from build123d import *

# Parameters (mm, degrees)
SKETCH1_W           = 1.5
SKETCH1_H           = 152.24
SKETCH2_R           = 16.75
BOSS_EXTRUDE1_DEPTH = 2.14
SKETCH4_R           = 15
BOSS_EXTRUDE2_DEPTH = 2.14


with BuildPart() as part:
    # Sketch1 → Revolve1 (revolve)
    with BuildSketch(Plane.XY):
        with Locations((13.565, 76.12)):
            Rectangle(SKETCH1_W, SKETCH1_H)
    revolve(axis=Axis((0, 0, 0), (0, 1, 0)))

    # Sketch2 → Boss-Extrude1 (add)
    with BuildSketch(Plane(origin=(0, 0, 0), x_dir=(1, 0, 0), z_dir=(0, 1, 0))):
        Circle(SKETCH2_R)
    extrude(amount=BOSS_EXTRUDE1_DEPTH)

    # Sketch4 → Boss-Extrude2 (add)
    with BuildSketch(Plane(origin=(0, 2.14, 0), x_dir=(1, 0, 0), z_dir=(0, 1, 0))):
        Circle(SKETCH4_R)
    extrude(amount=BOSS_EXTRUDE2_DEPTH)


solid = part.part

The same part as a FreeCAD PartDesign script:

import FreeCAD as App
import Part
import Sketcher

V = App.Vector

doc = App.newDocument("Part")
params = doc.addObject("Spreadsheet::Sheet", "Params")
for row, (alias, value) in enumerate([
    ("sketch1_width", "1.5 mm"),
    ("sketch1_height", "152.24 mm"),
    ("revolution_angle", "360 deg"),
    ("sketch2_diameter", "33.5 mm"),
    ("pad1_length", "2.14 mm"),
    ("sketch3_diameter", "30 mm"),
    ("pad2_length", "2.14 mm"),
], start=1):
    params.set(f"A{row}", alias)
    params.set(f"B{row}", "=" + value)
    params.setAlias(f"B{row}", alias)

body = doc.addObject("PartDesign::Body", "Body")

sketch1 = body.newObject("Sketcher::SketchObject", "Sketch")
sketch1.AttachmentSupport = (doc.getObject("XY_Plane"), [""])
sketch1.MapMode = "FlatFace"
sketch1.addGeometry([
    Part.LineSegment(V(12.8, 152.2, 0), V(12.8, 0, 0)),
    Part.LineSegment(V(12.8, 0, 0), V(14.3, 0, 0)),
    Part.LineSegment(V(14.3, 0, 0), V(14.3, 152.2, 0)),
    Part.LineSegment(V(14.3, 152.2, 0), V(12.8, 152.2, 0)),
], False)
sketch1.addConstraint([
    Sketcher.Constraint("Coincident", 0, 2, 1, 1),
    Sketcher.Constraint("Coincident", 1, 2, 2, 1),
    Sketcher.Constraint("Coincident", 2, 2, 3, 1),
    Sketcher.Constraint("Coincident", 3, 2, 0, 1),
    Sketcher.Constraint("Vertical", 0),
    Sketcher.Constraint("Horizontal", 1),
    Sketcher.Constraint("Vertical", 2),
    Sketcher.Constraint("Horizontal", 3),
    Sketcher.Constraint("PointOnObject", 0, 2, -1),
    Sketcher.Constraint("DistanceX", 1, 1, 1, 2, 1.5),
    Sketcher.Constraint("DistanceY", 0, 2, 0, 1, 152.24),
    Sketcher.Constraint("DistanceX", -1, 1, 0, 2, 12.815),
])
sketch1.setExpression("Constraints[9]", "Params.sketch1_width")
sketch1.setExpression("Constraints[10]", "Params.sketch1_height")
revolution = body.newObject("PartDesign::Revolution", "Revolution")
revolution.Profile = sketch1
revolution.ReferenceAxis = (sketch1, ["V_Axis"])
revolution.setExpression("Angle", "Params.revolution_angle")

sketch2 = body.newObject("Sketcher::SketchObject", "Sketch001")
sketch2.AttachmentSupport = (doc.getObject("XZ_Plane"), [""])
sketch2.MapMode = "FlatFace"
sketch2.addGeometry(Part.Circle(V(0, 0, 0), V(0, 0, 1), 17), False)
sketch2.addConstraint([
    Sketcher.Constraint("Coincident", 0, 3, -1, 1),
    Sketcher.Constraint("Diameter", 0, 33.5),
])
sketch2.setExpression("Constraints[1]", "Params.sketch2_diameter")
pad1 = body.newObject("PartDesign::Pad", "Pad")
pad1.Profile = sketch2
pad1.setExpression("Length", "Params.pad1_length")
pad1.Reversed = True

sketch3 = body.newObject("Sketcher::SketchObject", "Sketch002")
sketch3.AttachmentSupport = (doc.getObject("XZ_Plane"), [""])
sketch3.MapMode = "FlatFace"
sketch3.AttachmentOffset = App.Placement(V(0, 0, -2.14), App.Rotation())
sketch3.addGeometry(Part.Circle(V(0, 0, 0), V(0, 0, 1), 15), False)
sketch3.addConstraint([
    Sketcher.Constraint("Coincident", 0, 3, -1, 1),
    Sketcher.Constraint("Diameter", 0, 30.0),
])
sketch3.setExpression("Constraints[1]", "Params.sketch3_diameter")
pad2 = body.newObject("PartDesign::Pad", "Pad001")
pad2.Profile = sketch3
pad2.setExpression("Length", "Params.pad2_length")
pad2.Reversed = True

doc.recompute()
